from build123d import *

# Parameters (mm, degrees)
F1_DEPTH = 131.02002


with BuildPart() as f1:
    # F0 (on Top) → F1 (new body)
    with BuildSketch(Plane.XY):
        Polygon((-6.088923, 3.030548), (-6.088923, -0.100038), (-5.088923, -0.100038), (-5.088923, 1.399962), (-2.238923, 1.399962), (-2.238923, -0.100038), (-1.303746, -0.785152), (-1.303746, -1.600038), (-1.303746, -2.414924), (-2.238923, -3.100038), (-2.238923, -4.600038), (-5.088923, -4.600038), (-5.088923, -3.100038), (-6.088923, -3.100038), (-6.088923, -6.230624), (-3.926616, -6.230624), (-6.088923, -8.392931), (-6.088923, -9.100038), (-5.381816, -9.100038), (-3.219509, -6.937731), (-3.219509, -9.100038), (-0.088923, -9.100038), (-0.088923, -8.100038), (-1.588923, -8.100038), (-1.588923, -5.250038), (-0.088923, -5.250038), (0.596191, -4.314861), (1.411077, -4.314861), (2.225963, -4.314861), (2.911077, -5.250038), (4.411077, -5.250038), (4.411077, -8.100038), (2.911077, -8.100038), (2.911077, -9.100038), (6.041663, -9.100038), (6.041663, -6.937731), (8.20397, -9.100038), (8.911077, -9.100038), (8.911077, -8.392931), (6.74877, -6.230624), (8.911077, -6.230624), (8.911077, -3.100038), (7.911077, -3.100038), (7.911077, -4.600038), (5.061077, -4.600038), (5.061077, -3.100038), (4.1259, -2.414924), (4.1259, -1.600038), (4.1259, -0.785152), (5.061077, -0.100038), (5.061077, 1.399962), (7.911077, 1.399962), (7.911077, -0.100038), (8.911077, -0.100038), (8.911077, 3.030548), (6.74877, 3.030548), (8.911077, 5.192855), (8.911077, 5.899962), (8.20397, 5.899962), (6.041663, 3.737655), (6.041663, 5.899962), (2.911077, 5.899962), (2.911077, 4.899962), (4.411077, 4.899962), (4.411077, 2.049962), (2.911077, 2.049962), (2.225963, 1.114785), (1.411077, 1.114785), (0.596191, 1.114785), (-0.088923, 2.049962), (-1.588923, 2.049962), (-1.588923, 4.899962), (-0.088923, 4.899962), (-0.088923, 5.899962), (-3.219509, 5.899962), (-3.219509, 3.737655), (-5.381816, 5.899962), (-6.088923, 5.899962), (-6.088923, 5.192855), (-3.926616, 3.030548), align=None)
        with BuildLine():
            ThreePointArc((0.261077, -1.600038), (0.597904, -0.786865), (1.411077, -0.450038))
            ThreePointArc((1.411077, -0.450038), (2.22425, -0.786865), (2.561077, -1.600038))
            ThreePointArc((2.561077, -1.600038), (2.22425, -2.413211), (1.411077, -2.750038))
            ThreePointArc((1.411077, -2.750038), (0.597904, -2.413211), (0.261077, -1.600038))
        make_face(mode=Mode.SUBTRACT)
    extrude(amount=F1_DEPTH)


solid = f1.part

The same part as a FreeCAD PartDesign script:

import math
import FreeCAD as App
import Part
import Sketcher
Q = App.Units.Quantity


def add_polygon(sketch, points):
    """Adds a closed chain of lines whose ends are joined by coincident constraints."""
    first, n = sketch.GeometryCount, len(points)
    for a, b in zip(points, points[1:] + points[:1]):
        sketch.addGeometry(Part.LineSegment(App.Vector(*a, 0), App.Vector(*b, 0)), False)
    for i in range(n):
        sketch.addConstraint(Sketcher.Constraint("Coincident", first + i, 2, first + (i + 1) % n, 1))

doc = App.newDocument("Part")
params = doc.addObject("Spreadsheet::Sheet", "Params")
for row, (alias, value) in enumerate([
    ("sketch1_width", "1 mm"),
    ("sketch1_radius", "1.149999 mm"),
    ("sketch1_width2", "1.5 mm"),
    ("sketch1_width3", "2.85 mm"),
    ("pad1_length", "131.02002 mm"),
], start=1):
    params.set(f"A{row}", alias)
    params.set(f"B{row}", "=" + value)
    params.setAlias(f"B{row}", alias)

body = doc.addObject("PartDesign::Body", "Body")

sketch1 = doc.addObject("Sketcher::SketchObject", "Sketch")
body.addObject(sketch1)
sketch1.AttachmentSupport = (doc.XY_Plane, [""])
sketch1.MapMode = "FlatFace"
add_polygon(sketch1, [(-6.1, 3), (-6.1, -0.1), (-5.1, -0.1), (-5.1, 1.4), (-2.2, 1.4), (-2.2, -0.1), (-1.3, -0.8), (-1.3, -2.4), (-2.2, -3.1), (-2.2, -4.6), (-5.1, -4.6), (-5.1, -3.1), (-6.1, -3.1), (-6.1, -6.2), (-3.9, -6.2), (-6.1, -8.4), (-6.1, -9.1), (-5.4, -9.1), (-3.2, -6.9), (-3.2, -9.1), (-0.1, -9.1), (-0.1, -8.1), (-1.6, -8.1), (-1.6, -5.3), (-0.1, -5.3), (0.6, -4.3), (2.2, -4.3), (2.9, -5.3), (4.4, -5.3), (4.4, -8.1), (2.9, -8.1), (2.9, -9.1), (6, -9.1), (6, -6.9), (8.2, -9.1), (8.9, -9.1), (8.9, -8.4), (6.7, -6.2), (8.9, -6.2), (8.9, -3.1), (7.9, -3.1), (7.9, -4.6), (5.1, -4.6), (5.1, -3.1), (4.1, -2.4), (4.1, -0.8), (5.1, -0.1), (5.1, 1.4), (7.9, 1.4), (7.9, -0.1), (8.9, -0.1), (8.9, 3), (6.7, 3), (8.9, 5.2), (8.9, 5.9), (8.2, 5.9), (6, 3.7), (6, 5.9), (2.9, 5.9), (2.9, 4.9), (4.4, 4.9), (4.4, 2), (2.9, 2), (2.2, 1.1), (0.6, 1.1), (-0.1, 2), (-1.6, 2), (-1.6, 4.9), (-0.1, 4.9), (-0.1, 5.9), (-3.2, 5.9), (-3.2, 3.7), (-5.4, 5.9), (-6.1, 5.9), (-6.1, 5.2), (-3.9, 3)])
sketch1.addGeometry(Part.ArcOfCircle(Part.Circle(App.Vector(1.4, -1.6, 0), App.Vector(0, 0, 1), 1.1), math.radians(180), math.radians(270)), False)
sketch1.addGeometry(Part.ArcOfCircle(Part.Circle(App.Vector(1.4, -1.6, 0), App.Vector(0, 0, 1), 1.1), math.radians(90), math.radians(180)), False)
sketch1.addGeometry(Part.ArcOfCircle(Part.Circle(App.Vector(1.4, -1.6, 0), App.Vector(0, 0, 1), 1.1), math.radians(0), math.radians(90)), False)
sketch1.addGeometry(Part.ArcOfCircle(Part.Circle(App.Vector(1.4, -1.6, 0), App.Vector(0, 0, 1), 1.1), math.radians(-90), math.radians(0)), False)
sketch1.addConstraint([
    Sketcher.Constraint("Tangent", 76, 1, 77, 2),
    Sketcher.Constraint("Tangent", 77, 1, 78, 2),
    Sketcher.Constraint("Tangent", 78, 1, 79, 2),
    Sketcher.Constraint("Tangent", 79, 1, 76, 2),
    Sketcher.Constraint("Vertical", 0),
    Sketcher.Constraint("Horizontal", 1),
    Sketcher.Constraint("Vertical", 2),
    Sketcher.Constraint("Horizontal", 3),
    Sketcher.Constraint("Vertical", 4),
    Sketcher.Constraint("Vertical", 6),
    Sketcher.Constraint("Vertical", 8),
    Sketcher.Constraint("Horizontal", 9),
    Sketcher.Constraint("Vertical", 10),
    Sketcher.Constraint("Horizontal", 11),
    Sketcher.Constraint("Vertical", 12),
    Sketcher.Constraint("Horizontal", 13),
    Sketcher.Constraint("Vertical", 15),
    Sketcher.Constraint("Horizontal", 16),
    Sketcher.Constraint("Vertical", 18),
    Sketcher.Constraint("Horizontal", 19),
    Sketcher.Constraint("Vertical", 20),
    Sketcher.Constraint("Horizontal", 21),
    Sketcher.Constraint("Vertical", 22),
    Sketcher.Constraint("Horizontal", 23),
    Sketcher.Constraint("Horizontal", 25),
    Sketcher.Constraint("Horizontal", 27),
    Sketcher.Constraint("Vertical", 28),
    Sketcher.Constraint("Horizontal", 29),
    Sketcher.Constraint("Vertical", 30),
    Sketcher.Constraint("Horizontal", 31),
    Sketcher.Constraint("Vertical", 32),
    Sketcher.Constraint("Horizontal", 34),
    Sketcher.Constraint("Vertical", 35),
    Sketcher.Constraint("Horizontal", 37),
    Sketcher.Constraint("Vertical", 38),
    Sketcher.Constraint("Horizontal", 39),
    Sketcher.Constraint("Vertical", 40),
    Sketcher.Constraint("Horizontal", 41),
    Sketcher.Constraint("Vertical", 42),
    Sketcher.Constraint("Vertical", 44),
    Sketcher.Constraint("Vertical", 46),
    Sketcher.Constraint("Horizontal", 47),
    Sketcher.Constraint("Vertical", 48),
    Sketcher.Constraint("Horizontal", 49),
    Sketcher.Constraint("Vertical", 50),
    Sketcher.Constraint("Horizontal", 51),
    Sketcher.Constraint("Vertical", 53),
    Sketcher.Constraint("Horizontal", 54),
    Sketcher.Constraint("Vertical", 56),
    Sketcher.Constraint("Horizontal", 57),
    Sketcher.Constraint("Vertical", 58),
    Sketcher.Constraint("Horizontal", 59),
    Sketcher.Constraint("Vertical", 60),
    Sketcher.Constraint("Horizontal", 61),
    Sketcher.Constraint("Horizontal", 63),
    Sketcher.Constraint("Horizontal", 65),
    Sketcher.Constraint("Vertical", 66),
    Sketcher.Constraint("Horizontal", 67),
    Sketcher.Constraint("Vertical", 68),
    Sketcher.Constraint("Horizontal", 69),
    Sketcher.Constraint("Vertical", 70),
    Sketcher.Constraint("Horizontal", 72),
    Sketcher.Constraint("Vertical", 73),
    Sketcher.Constraint("Horizontal", 75),
    Sketcher.Constraint("Equal", 76, 77),
    Sketcher.Constraint("Parallel", 14, 17),
    Sketcher.Constraint("Perpendicular", 5, 24),
    Sketcher.Constraint("Perpendicular", 7, 26),
    Sketcher.Constraint("Perpendicular", 17, 33),
    Sketcher.Constraint("Parallel", 33, 36),
    Sketcher.Constraint("Perpendicular", 24, 43),
    Sketcher.Constraint("Perpendicular", 26, 45),
    Sketcher.Constraint("Perpendicular", 36, 52),
    Sketcher.Constraint("Parallel", 52, 55),
    Sketcher.Constraint("Perpendicular", 43, 62),
    Sketcher.Constraint("Perpendicular", 45, 64),
    Sketcher.Constraint("Perpendicular", 55, 71),
    Sketcher.Constraint("Parallel", 71, 74),
    Sketcher.Constraint("Horizontal", 1, 2, 4, 2),
    Sketcher.Constraint("Horizontal", 7, 2, 10, 2),
    Sketcher.Constraint("Horizontal", 16, 2, 18, 2),
    Sketcher.Constraint("Horizontal", 23, 2, 26, 2),
    Sketcher.Constraint("Horizontal", 21, 2, 28, 2),
    Sketcher.Constraint("Horizontal", 19, 2, 30, 2),
    Sketcher.Constraint("Horizontal", 17, 2, 32, 2),
    Sketcher.Constraint("Horizontal", 31, 2, 33, 2),
    Sketcher.Constraint("Horizontal", 14, 2, 35, 2),
    Sketcher.Constraint("Horizontal", 13, 2, 36, 2),
    Sketcher.Constraint("Horizontal", 11, 2, 38, 2),
    Sketcher.Constraint("Horizontal", 9, 2, 40, 2),
    Sketcher.Constraint("Horizontal", 39, 2, 42, 2),
    Sketcher.Constraint("Horizontal", 6, 2, 43, 2),
    Sketcher.Constraint("Horizontal", 5, 2, 44, 2),
    Sketcher.Constraint("Horizontal", 4, 2, 45, 2),
    Sketcher.Constraint("Horizontal", 3, 2, 46, 2),
    Sketcher.Constraint("Horizontal", 45, 2, 48, 2),
    Sketcher.Constraint("Horizontal", 54, 2, 56, 2),
    Sketcher.Constraint("Horizontal", 61, 2, 64, 2),
    Sketcher.Constraint("Horizontal", 59, 2, 66, 2),
    Sketcher.Constraint("Horizontal", 57, 2, 68, 2),
    Sketcher.Constraint("Horizontal", 55, 2, 70, 2),
    Sketcher.Constraint("Horizontal", 69, 2, 71, 2),
    Sketcher.Constraint("Horizontal", 52, 2, 73, 2),
    Sketcher.Constraint("Horizontal", 51, 2, 74, 2),
    Sketcher.Constraint("Horizontal", 79, 3, 76, 1),
    Sketcher.Constraint("Horizontal", 76, 1, 78, 1),
    Sketcher.Constraint("Vertical", 4, 2, 7, 2),
    Sketcher.Constraint("Vertical", 2, 2, 9, 2),
    Sketcher.Constraint("Vertical", 0, 2, 11, 2),
    Sketcher.Constraint("Vertical", 12, 2, 14, 2),
    Sketcher.Constraint("Vertical", 20, 2, 23, 2),
    Sketcher.Constraint("Vertical", 26, 2, 29, 2),
    Sketcher.Constraint("Vertical", 35, 2, 37, 2),
    Sketcher.Constraint("Vertical", 42, 2, 45, 2),
    Sketcher.Constraint("Vertical", 40, 2, 47, 2),
    Sketcher.Constraint("Vertical", 38, 2, 49, 2),
    Sketcher.Constraint("Vertical", 36, 2, 51, 2),
    Sketcher.Constraint("Vertical", 50, 2, 52, 2),
    Sketcher.Constraint("Vertical", 33, 2, 54, 2),
    Sketcher.Constraint("Vertical", 32, 2, 55, 2),
    Sketcher.Constraint("Vertical", 30, 2, 57, 2),
    Sketcher.Constraint("Vertical", 28, 2, 59, 2),
    Sketcher.Constraint("Vertical", 58, 2, 61, 2),
    Sketcher.Constraint("Vertical", 25, 2, 62, 2),
    Sketcher.Constraint("Vertical", 24, 2, 63, 2),
    Sketcher.Constraint("Vertical", 22, 2, 65, 2),
    Sketcher.Constraint("Vertical", 64, 2, 67, 2),
    Sketcher.Constraint("Vertical", 18, 2, 69, 2),
    Sketcher.Constraint("Vertical", 16, 2, 71, 2),
    Sketcher.Constraint("Vertical", 15, 2, 72, 2),
    Sketcher.Constraint("Vertical", 79, 3, 77, 1),
    Sketcher.Constraint("Vertical", 77, 1, 79, 1),
    Sketcher.Constraint("Equal", 23, 27),
    Sketcher.Constraint("Equal", 19, 31),
    Sketcher.Constraint("Equal", 16, 34),
    Sketcher.Constraint("Equal", 11, 39),
    Sketcher.Constraint("Equal", 9, 41),
    Sketcher.Constraint("Equal", 69, 0),
    Sketcher.Constraint("Equal", 67, 2),
    Sketcher.Constraint("Equal", 63, 6),
    Sketcher.Constraint("Equal", 4, 8),
    Sketcher.Constraint("Equal", 0, 12),
    Sketcher.Constraint("Equal", 72, 15),
    Sketcher.Constraint("Equal", 75, 18),
    Sketcher.Constraint("Equal", 49, 20),
    Sketcher.Constraint("Equal", 47, 22),
    Sketcher.Constraint("Equal", 35, 53),
    Sketcher.Constraint("Equal", 30, 58),
    Sketcher.Constraint("Equal", 28, 60),
    Sketcher.Constraint("Equal", 7, 24),
    Sketcher.Constraint("DistanceX", 1, 1, 1, 2, Q("1 mm")),
    Sketcher.Constraint("Radius", 76, Q("1.149999 mm")),
    Sketcher.Constraint("DistanceX", 21, 2, 21, 1, Q("1.5 mm")),
    Sketcher.Constraint("DistanceX", 3, 1, 3, 2, Q("2.85 mm")),
    Sketcher.Constraint("DistanceX", -1, 1, 43, 2, Q("4.1259 mm")),
    Sketcher.Constraint("DistanceX", 13, 1, 13, 2, Q("2.162307 mm")),
    Sketcher.Constraint("DistanceX", 16, 1, 16, 2, Q("0.707107 mm")),
    Sketcher.Constraint("DistanceX", 19, 1, 19, 2, Q("3.130586 mm")),
    Sketcher.Constraint("DistanceX", 25, 1, 25, 2, Q("1.629772 mm")),
    Sketcher.Constraint("DistanceY", 76, 3, -1, 1, Q("1.600039 mm")),
    Sketcher.Constraint("DistanceY", -1, 1, 2, 2, Q("1.399962 mm")),
    Sketcher.Constraint("DistanceY", 5, 2, -1, 1, Q("0.785152 mm")),
    Sketcher.Constraint("DistanceX", 17, 2, -1, 1, Q("3.219509 mm")),
    Sketcher.Constraint("DistanceX", -1, 1, 76, 3, Q("1.411076 mm")),
])
sketch1.setExpression("Constraints[226]", "Params.sketch1_width")
sketch1.setExpression("Constraints[227]", "Params.sketch1_radius")
sketch1.setExpression("Constraints[228]", "Params.sketch1_width2")
sketch1.setExpression("Constraints[229]", "Params.sketch1_width3")
pad1 = doc.addObject("PartDesign::Pad", "Pad")
body.addObject(pad1)
pad1.Profile = sketch1
pad1.setExpression("Length", "Params.pad1_length")

doc.recompute()
